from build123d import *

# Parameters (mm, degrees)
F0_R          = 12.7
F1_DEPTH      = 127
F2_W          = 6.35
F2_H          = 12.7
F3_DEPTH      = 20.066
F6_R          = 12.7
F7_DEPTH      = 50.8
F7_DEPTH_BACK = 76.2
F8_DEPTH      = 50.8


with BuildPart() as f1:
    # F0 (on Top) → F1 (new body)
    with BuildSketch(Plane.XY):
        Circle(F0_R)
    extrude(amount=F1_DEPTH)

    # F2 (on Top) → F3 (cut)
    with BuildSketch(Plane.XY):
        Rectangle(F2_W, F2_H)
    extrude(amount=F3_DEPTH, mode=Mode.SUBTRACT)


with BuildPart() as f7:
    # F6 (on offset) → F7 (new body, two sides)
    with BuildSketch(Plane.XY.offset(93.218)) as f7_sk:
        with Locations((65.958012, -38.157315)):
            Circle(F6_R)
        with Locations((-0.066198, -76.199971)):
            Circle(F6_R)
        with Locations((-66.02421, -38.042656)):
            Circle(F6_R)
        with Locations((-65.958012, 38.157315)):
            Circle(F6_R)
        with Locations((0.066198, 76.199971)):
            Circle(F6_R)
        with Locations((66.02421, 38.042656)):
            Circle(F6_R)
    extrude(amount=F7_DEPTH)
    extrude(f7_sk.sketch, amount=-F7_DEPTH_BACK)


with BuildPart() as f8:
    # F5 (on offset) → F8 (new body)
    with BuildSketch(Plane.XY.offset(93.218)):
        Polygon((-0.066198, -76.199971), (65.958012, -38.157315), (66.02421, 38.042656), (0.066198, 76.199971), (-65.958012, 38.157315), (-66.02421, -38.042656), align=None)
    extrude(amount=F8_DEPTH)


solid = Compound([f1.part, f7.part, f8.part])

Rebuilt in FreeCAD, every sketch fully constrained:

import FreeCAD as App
import Part
import Sketcher

V = App.Vector
Q = App.Units.Quantity

doc = App.newDocument("Part")
body = doc.addObject("PartDesign::Body", "Body")

sketch1 = body.newObject("Sketcher::SketchObject", "Sketch")
sketch1.AttachmentSupport = (doc.getObject("XY_Plane"), [""])
sketch1.MapMode = "FlatFace"
sketch1.addGeometry(Part.Circle(V(0, 0, 0), V(0, 0, 1), 13), False)
sketch1.addConstraint(Sketcher.Constraint("Coincident", 0, 3, -1, 1))
sketch1.addConstraint(Sketcher.Constraint("Diameter", 0, Q("1 in")))
pad1 = body.newObject("PartDesign::Pad", "Pad")
pad1.Profile = sketch1
pad1.Length = Q("5 in")

sketch2 = body.newObject("Sketcher::SketchObject", "Sketch001")
sketch2.AttachmentSupport = (doc.getObject("XY_Plane"), [""])
sketch2.MapMode = "FlatFace"
sketch2.addGeometry(Part.LineSegment(V(-3, 6, 0), V(-3, -6, 0)), False)
sketch2.addGeometry(Part.LineSegment(V(-3, -6, 0), V(3, -6, 0)), False)
sketch2.addGeometry(Part.LineSegment(V(3, -6, 0), V(3, 6, 0)), False)
sketch2.addGeometry(Part.LineSegment(V(3, 6, 0), V(-3, 6, 0)), False)
sketch2.addConstraint(Sketcher.Constraint("Coincident", 0, 2, 1, 1))
sketch2.addConstraint(Sketcher.Constraint("Coincident", 1, 2, 2, 1))
sketch2.addConstraint(Sketcher.Constraint("Coincident", 2, 2, 3, 1))
sketch2.addConstraint(Sketcher.Constraint("Coincident", 3, 2, 0, 1))
sketch2.addConstraint(Sketcher.Constraint("Vertical", 0))
sketch2.addConstraint(Sketcher.Constraint("Horizontal", 1))
sketch2.addConstraint(Sketcher.Constraint("Vertical", 2))
sketch2.addConstraint(Sketcher.Constraint("Horizontal", 3))
sketch2.addConstraint(Sketcher.Constraint("Symmetric", 0, 2, 2, 2, -1, 1))
sketch2.addConstraint(Sketcher.Constraint("DistanceY", 0, 2, 0, 1, Q("0.5 in")))
sketch2.addConstraint(Sketcher.Constraint("DistanceX", 1, 1, 1, 2, Q("0.25 in")))
pocket1 = body.newObject("PartDesign::Pocket", "Pocket")
pocket1.Profile = sketch2
pocket1.Length = Q("0.79 in")
pocket1.Reversed = True
body2 = doc.addObject("PartDesign::Body", "Body001")
body2.AllowCompound = True

sketch3 = body2.newObject("Sketcher::SketchObject", "Sketch002")
sketch3.AttachmentSupport = (doc.getObject("XY_Plane001"), [""])
sketch3.MapMode = "FlatFace"
sketch3.AttachmentOffset = App.Placement(V(0, 0, 3.67 * 25.4), App.Rotation())
sketch3.addGeometry(Part.Circle(V(66, -38, 0), V(0, 0, 1), 13), False)
sketch3.addGeometry(Part.Circle(V(0, -76, 0), V(0, 0, 1), 13), False)
sketch3.addGeometry(Part.Circle(V(-66, -38, 0), V(0, 0, 1), 13), False)
sketch3.addGeometry(Part.Circle(V(-66, 38, 0), V(0, 0, 1), 13), False)
sketch3.addGeometry(Part.Circle(V(0, 76, 0), V(0, 0, 1), 13), False)
sketch3.addGeometry(Part.Circle(V(66, 38, 0), V(0, 0, 1), 13), False)
sketch3.addConstraint(Sketcher.Constraint("Equal", 0, 1))
sketch3.addConstraint(Sketcher.Constraint("Equal", 1, 2))
sketch3.addConstraint(Sketcher.Constraint("Equal", 2, 3))
sketch3.addConstraint(Sketcher.Constraint("Equal", 3, 4))
sketch3.addConstraint(Sketcher.Constraint("Equal", 4, 5))
sketch3.addConstraint(Sketcher.Constraint("Symmetric", 0, 3, 3, 3, -1, 1))
sketch3.addConstraint(Sketcher.Constraint("Symmetric", 1, 3, 4, 3, -1, 1))
sketch3.addConstraint(Sketcher.Constraint("Symmetric", 2, 3, 5, 3, -1, 1))
sketch3.addConstraint(Sketcher.Constraint("Diameter", 0, Q("1 in")))
sketch3.addConstraint(Sketcher.Constraint("DistanceX", 1, 3, -1, 1, Q("0.066198 mm")))
sketch3.addConstraint(Sketcher.Constraint("DistanceX", -1, 1, 0, 3, Q("65.958012 mm")))
sketch3.addConstraint(Sketcher.Constraint("DistanceY", 1, 3, -1, 1, Q("76.199971 mm")))
sketch3.addConstraint(Sketcher.Constraint("DistanceX", 2, 3, -1, 1, Q("66.02421 mm")))
sketch3.addConstraint(Sketcher.Constraint("DistanceY", 0, 3, 2, 3, Q("0.114659 mm")))
sketch3.addConstraint(Sketcher.Constraint("DistanceY", 2, 3, 3, 3, Q("76.199971 mm")))
pad2 = body2.newObject("PartDesign::Pad", "Pad001")
pad2.Profile = sketch3
pad2.Type = "TwoLengths"
pad2.Length = Q("2 in")
pad2.Length2 = Q("3 in")
body3 = doc.addObject("PartDesign::Body", "Body002")

sketch4 = body3.newObject("Sketcher::SketchObject", "Sketch003")
sketch4.AttachmentSupport = (doc.getObject("XY_Plane002"), [""])
sketch4.MapMode = "FlatFace"
sketch4.AttachmentOffset = App.Placement(V(0, 0, 3.67 * 25.4), App.Rotation())
sketch4.addGeometry(Part.LineSegment(V(0, -76, 0), V(66, -38, 0)), False)
sketch4.addGeometry(Part.LineSegment(V(66, -38, 0), V(66, 38, 0)), False)
sketch4.addGeometry(Part.LineSegment(V(66, 38, 0), V(0, 76, 0)), False)
sketch4.addGeometry(Part.LineSegment(V(0, 76, 0), V(-66, 38, 0)), False)
sketch4.addGeometry(Part.LineSegment(V(-66, 38, 0), V(-66, -38, 0)), False)
sketch4.addGeometry(Part.LineSegment(V(-66, -38, 0), V(0, -76, 0)), False)
sketch4.addConstraint(Sketcher.Constraint("Coincident", 0, 2, 1, 1))
sketch4.addConstraint(Sketcher.Constraint("Coincident", 1, 2, 2, 1))
sketch4.addConstraint(Sketcher.Constraint("Coincident", 2, 2, 3, 1))
sketch4.addConstraint(Sketcher.Constraint("Coincident", 3, 2, 4, 1))
sketch4.addConstraint(Sketcher.Constraint("Coincident", 4, 2, 5, 1))
sketch4.addConstraint(Sketcher.Constraint("Coincident", 5, 2, 0, 1))
sketch4.addConstraint(Sketcher.Constraint("Symmetric", 0, 2, 3, 2, -1, 1))
sketch4.addConstraint(Sketcher.Constraint("Symmetric", 1, 2, 4, 2, -1, 1))
sketch4.addConstraint(Sketcher.Constraint("Symmetric", 2, 2, 5, 2, -1, 1))
sketch4.addConstraint(Sketcher.Constraint("Equal", 0, 1))
sketch4.addConstraint(Sketcher.Constraint("Equal", 1, 2))
sketch4.addConstraint(Sketcher.Constraint("Distance", 0, Q("3 in")))
sketch4.addConstraint(Sketcher.Constraint("DistanceX", -1, 1, 2, 2, Q("0.066198 mm")))
sketch4.addConstraint(Sketcher.Constraint("DistanceX", -1, 1, 0, 2, Q("65.958012 mm")))
sketch4.addConstraint(Sketcher.Constraint("DistanceX", -1, 1, 1, 2, Q("66.02421 mm")))
pad3 = body3.newObject("PartDesign::Pad", "Pad002")
pad3.Profile = sketch4
pad3.Length = Q("2 in")

doc.recompute()
